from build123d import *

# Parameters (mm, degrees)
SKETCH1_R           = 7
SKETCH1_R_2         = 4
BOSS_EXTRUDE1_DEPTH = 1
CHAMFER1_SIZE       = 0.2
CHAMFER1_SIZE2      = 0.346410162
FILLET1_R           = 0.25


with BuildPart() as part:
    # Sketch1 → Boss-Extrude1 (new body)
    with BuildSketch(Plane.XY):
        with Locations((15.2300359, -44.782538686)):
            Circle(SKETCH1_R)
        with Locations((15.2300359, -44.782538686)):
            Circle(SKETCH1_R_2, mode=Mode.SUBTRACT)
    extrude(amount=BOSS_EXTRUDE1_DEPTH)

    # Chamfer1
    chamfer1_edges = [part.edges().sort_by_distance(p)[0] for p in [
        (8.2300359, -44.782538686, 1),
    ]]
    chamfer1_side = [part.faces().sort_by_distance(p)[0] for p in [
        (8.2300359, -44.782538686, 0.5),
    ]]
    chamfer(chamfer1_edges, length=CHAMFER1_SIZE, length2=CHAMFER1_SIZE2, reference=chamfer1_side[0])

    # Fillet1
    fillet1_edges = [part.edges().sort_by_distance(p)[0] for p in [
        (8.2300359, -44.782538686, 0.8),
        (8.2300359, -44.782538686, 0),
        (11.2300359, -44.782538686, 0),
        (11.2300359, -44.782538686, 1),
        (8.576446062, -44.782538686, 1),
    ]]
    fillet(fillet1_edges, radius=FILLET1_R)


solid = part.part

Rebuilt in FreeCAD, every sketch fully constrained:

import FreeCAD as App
import Part
import Sketcher


def edges_at(feature, points):
    """Names of the edges that pass closest to the given points."""
    edges = feature.Shape.Edges
    near = lambda p: min(range(len(edges)), key=lambda i: edges[i].distToShape(Part.Vertex(*p))[0])
    return sorted({f"Edge{near(p) + 1}" for p in points})

doc = App.newDocument("Part")
body = doc.addObject("PartDesign::Body", "Body")

# Sketch on XY plane
sketch1 = body.newObject("Sketcher::SketchObject", "Sketch")
sketch1.AttachmentSupport = (doc.getObject("XY_Plane"), [""])
sketch1.MapMode = "FlatFace"
sketch1.addGeometry([
    Part.Circle(App.Vector(15.2, -44.8, 0), App.Vector(0, 0, 1), 7),
    Part.Circle(App.Vector(15.2, -44.8, 0), App.Vector(0, 0, 1), 4),
], False)
sketch1.addConstraint([
    Sketcher.Constraint("Coincident", 1, 3, 0, 3),
    Sketcher.Constraint("Diameter", 0, 14.0),
    Sketcher.Constraint("Diameter", 1, 8.0),
    Sketcher.Constraint("DistanceY", 0, 3, -1, 1, 44.782539),
    Sketcher.Constraint("DistanceX", -1, 1, 0, 3, 15.230036),
])
pad1 = body.newObject("PartDesign::Pad", "Pad")
pad1.Profile = sketch1
pad1.Length = 1
doc.recompute()

chamfer = body.newObject("PartDesign::Chamfer", "Chamfer")
chamfer.Base = (pad1, edges_at(pad1, [(8.23, -44.783, 1)]))
chamfer.ChamferType = "Two distances"
chamfer.Size = 0.2
chamfer.Size2 = 0.34641
doc.recompute()

fillet = body.newObject("PartDesign::Fillet", "Fillet")
fillet.Base = (chamfer, edges_at(chamfer, [
    (8.23, -44.783, 0.8),
    (8.23, -44.783, 0),
    (11.23, -44.783, 0),
    (11.23, -44.783, 1),
    (8.576, -44.783, 1),
]))
fillet.Radius = 0.25

doc.recompute()
